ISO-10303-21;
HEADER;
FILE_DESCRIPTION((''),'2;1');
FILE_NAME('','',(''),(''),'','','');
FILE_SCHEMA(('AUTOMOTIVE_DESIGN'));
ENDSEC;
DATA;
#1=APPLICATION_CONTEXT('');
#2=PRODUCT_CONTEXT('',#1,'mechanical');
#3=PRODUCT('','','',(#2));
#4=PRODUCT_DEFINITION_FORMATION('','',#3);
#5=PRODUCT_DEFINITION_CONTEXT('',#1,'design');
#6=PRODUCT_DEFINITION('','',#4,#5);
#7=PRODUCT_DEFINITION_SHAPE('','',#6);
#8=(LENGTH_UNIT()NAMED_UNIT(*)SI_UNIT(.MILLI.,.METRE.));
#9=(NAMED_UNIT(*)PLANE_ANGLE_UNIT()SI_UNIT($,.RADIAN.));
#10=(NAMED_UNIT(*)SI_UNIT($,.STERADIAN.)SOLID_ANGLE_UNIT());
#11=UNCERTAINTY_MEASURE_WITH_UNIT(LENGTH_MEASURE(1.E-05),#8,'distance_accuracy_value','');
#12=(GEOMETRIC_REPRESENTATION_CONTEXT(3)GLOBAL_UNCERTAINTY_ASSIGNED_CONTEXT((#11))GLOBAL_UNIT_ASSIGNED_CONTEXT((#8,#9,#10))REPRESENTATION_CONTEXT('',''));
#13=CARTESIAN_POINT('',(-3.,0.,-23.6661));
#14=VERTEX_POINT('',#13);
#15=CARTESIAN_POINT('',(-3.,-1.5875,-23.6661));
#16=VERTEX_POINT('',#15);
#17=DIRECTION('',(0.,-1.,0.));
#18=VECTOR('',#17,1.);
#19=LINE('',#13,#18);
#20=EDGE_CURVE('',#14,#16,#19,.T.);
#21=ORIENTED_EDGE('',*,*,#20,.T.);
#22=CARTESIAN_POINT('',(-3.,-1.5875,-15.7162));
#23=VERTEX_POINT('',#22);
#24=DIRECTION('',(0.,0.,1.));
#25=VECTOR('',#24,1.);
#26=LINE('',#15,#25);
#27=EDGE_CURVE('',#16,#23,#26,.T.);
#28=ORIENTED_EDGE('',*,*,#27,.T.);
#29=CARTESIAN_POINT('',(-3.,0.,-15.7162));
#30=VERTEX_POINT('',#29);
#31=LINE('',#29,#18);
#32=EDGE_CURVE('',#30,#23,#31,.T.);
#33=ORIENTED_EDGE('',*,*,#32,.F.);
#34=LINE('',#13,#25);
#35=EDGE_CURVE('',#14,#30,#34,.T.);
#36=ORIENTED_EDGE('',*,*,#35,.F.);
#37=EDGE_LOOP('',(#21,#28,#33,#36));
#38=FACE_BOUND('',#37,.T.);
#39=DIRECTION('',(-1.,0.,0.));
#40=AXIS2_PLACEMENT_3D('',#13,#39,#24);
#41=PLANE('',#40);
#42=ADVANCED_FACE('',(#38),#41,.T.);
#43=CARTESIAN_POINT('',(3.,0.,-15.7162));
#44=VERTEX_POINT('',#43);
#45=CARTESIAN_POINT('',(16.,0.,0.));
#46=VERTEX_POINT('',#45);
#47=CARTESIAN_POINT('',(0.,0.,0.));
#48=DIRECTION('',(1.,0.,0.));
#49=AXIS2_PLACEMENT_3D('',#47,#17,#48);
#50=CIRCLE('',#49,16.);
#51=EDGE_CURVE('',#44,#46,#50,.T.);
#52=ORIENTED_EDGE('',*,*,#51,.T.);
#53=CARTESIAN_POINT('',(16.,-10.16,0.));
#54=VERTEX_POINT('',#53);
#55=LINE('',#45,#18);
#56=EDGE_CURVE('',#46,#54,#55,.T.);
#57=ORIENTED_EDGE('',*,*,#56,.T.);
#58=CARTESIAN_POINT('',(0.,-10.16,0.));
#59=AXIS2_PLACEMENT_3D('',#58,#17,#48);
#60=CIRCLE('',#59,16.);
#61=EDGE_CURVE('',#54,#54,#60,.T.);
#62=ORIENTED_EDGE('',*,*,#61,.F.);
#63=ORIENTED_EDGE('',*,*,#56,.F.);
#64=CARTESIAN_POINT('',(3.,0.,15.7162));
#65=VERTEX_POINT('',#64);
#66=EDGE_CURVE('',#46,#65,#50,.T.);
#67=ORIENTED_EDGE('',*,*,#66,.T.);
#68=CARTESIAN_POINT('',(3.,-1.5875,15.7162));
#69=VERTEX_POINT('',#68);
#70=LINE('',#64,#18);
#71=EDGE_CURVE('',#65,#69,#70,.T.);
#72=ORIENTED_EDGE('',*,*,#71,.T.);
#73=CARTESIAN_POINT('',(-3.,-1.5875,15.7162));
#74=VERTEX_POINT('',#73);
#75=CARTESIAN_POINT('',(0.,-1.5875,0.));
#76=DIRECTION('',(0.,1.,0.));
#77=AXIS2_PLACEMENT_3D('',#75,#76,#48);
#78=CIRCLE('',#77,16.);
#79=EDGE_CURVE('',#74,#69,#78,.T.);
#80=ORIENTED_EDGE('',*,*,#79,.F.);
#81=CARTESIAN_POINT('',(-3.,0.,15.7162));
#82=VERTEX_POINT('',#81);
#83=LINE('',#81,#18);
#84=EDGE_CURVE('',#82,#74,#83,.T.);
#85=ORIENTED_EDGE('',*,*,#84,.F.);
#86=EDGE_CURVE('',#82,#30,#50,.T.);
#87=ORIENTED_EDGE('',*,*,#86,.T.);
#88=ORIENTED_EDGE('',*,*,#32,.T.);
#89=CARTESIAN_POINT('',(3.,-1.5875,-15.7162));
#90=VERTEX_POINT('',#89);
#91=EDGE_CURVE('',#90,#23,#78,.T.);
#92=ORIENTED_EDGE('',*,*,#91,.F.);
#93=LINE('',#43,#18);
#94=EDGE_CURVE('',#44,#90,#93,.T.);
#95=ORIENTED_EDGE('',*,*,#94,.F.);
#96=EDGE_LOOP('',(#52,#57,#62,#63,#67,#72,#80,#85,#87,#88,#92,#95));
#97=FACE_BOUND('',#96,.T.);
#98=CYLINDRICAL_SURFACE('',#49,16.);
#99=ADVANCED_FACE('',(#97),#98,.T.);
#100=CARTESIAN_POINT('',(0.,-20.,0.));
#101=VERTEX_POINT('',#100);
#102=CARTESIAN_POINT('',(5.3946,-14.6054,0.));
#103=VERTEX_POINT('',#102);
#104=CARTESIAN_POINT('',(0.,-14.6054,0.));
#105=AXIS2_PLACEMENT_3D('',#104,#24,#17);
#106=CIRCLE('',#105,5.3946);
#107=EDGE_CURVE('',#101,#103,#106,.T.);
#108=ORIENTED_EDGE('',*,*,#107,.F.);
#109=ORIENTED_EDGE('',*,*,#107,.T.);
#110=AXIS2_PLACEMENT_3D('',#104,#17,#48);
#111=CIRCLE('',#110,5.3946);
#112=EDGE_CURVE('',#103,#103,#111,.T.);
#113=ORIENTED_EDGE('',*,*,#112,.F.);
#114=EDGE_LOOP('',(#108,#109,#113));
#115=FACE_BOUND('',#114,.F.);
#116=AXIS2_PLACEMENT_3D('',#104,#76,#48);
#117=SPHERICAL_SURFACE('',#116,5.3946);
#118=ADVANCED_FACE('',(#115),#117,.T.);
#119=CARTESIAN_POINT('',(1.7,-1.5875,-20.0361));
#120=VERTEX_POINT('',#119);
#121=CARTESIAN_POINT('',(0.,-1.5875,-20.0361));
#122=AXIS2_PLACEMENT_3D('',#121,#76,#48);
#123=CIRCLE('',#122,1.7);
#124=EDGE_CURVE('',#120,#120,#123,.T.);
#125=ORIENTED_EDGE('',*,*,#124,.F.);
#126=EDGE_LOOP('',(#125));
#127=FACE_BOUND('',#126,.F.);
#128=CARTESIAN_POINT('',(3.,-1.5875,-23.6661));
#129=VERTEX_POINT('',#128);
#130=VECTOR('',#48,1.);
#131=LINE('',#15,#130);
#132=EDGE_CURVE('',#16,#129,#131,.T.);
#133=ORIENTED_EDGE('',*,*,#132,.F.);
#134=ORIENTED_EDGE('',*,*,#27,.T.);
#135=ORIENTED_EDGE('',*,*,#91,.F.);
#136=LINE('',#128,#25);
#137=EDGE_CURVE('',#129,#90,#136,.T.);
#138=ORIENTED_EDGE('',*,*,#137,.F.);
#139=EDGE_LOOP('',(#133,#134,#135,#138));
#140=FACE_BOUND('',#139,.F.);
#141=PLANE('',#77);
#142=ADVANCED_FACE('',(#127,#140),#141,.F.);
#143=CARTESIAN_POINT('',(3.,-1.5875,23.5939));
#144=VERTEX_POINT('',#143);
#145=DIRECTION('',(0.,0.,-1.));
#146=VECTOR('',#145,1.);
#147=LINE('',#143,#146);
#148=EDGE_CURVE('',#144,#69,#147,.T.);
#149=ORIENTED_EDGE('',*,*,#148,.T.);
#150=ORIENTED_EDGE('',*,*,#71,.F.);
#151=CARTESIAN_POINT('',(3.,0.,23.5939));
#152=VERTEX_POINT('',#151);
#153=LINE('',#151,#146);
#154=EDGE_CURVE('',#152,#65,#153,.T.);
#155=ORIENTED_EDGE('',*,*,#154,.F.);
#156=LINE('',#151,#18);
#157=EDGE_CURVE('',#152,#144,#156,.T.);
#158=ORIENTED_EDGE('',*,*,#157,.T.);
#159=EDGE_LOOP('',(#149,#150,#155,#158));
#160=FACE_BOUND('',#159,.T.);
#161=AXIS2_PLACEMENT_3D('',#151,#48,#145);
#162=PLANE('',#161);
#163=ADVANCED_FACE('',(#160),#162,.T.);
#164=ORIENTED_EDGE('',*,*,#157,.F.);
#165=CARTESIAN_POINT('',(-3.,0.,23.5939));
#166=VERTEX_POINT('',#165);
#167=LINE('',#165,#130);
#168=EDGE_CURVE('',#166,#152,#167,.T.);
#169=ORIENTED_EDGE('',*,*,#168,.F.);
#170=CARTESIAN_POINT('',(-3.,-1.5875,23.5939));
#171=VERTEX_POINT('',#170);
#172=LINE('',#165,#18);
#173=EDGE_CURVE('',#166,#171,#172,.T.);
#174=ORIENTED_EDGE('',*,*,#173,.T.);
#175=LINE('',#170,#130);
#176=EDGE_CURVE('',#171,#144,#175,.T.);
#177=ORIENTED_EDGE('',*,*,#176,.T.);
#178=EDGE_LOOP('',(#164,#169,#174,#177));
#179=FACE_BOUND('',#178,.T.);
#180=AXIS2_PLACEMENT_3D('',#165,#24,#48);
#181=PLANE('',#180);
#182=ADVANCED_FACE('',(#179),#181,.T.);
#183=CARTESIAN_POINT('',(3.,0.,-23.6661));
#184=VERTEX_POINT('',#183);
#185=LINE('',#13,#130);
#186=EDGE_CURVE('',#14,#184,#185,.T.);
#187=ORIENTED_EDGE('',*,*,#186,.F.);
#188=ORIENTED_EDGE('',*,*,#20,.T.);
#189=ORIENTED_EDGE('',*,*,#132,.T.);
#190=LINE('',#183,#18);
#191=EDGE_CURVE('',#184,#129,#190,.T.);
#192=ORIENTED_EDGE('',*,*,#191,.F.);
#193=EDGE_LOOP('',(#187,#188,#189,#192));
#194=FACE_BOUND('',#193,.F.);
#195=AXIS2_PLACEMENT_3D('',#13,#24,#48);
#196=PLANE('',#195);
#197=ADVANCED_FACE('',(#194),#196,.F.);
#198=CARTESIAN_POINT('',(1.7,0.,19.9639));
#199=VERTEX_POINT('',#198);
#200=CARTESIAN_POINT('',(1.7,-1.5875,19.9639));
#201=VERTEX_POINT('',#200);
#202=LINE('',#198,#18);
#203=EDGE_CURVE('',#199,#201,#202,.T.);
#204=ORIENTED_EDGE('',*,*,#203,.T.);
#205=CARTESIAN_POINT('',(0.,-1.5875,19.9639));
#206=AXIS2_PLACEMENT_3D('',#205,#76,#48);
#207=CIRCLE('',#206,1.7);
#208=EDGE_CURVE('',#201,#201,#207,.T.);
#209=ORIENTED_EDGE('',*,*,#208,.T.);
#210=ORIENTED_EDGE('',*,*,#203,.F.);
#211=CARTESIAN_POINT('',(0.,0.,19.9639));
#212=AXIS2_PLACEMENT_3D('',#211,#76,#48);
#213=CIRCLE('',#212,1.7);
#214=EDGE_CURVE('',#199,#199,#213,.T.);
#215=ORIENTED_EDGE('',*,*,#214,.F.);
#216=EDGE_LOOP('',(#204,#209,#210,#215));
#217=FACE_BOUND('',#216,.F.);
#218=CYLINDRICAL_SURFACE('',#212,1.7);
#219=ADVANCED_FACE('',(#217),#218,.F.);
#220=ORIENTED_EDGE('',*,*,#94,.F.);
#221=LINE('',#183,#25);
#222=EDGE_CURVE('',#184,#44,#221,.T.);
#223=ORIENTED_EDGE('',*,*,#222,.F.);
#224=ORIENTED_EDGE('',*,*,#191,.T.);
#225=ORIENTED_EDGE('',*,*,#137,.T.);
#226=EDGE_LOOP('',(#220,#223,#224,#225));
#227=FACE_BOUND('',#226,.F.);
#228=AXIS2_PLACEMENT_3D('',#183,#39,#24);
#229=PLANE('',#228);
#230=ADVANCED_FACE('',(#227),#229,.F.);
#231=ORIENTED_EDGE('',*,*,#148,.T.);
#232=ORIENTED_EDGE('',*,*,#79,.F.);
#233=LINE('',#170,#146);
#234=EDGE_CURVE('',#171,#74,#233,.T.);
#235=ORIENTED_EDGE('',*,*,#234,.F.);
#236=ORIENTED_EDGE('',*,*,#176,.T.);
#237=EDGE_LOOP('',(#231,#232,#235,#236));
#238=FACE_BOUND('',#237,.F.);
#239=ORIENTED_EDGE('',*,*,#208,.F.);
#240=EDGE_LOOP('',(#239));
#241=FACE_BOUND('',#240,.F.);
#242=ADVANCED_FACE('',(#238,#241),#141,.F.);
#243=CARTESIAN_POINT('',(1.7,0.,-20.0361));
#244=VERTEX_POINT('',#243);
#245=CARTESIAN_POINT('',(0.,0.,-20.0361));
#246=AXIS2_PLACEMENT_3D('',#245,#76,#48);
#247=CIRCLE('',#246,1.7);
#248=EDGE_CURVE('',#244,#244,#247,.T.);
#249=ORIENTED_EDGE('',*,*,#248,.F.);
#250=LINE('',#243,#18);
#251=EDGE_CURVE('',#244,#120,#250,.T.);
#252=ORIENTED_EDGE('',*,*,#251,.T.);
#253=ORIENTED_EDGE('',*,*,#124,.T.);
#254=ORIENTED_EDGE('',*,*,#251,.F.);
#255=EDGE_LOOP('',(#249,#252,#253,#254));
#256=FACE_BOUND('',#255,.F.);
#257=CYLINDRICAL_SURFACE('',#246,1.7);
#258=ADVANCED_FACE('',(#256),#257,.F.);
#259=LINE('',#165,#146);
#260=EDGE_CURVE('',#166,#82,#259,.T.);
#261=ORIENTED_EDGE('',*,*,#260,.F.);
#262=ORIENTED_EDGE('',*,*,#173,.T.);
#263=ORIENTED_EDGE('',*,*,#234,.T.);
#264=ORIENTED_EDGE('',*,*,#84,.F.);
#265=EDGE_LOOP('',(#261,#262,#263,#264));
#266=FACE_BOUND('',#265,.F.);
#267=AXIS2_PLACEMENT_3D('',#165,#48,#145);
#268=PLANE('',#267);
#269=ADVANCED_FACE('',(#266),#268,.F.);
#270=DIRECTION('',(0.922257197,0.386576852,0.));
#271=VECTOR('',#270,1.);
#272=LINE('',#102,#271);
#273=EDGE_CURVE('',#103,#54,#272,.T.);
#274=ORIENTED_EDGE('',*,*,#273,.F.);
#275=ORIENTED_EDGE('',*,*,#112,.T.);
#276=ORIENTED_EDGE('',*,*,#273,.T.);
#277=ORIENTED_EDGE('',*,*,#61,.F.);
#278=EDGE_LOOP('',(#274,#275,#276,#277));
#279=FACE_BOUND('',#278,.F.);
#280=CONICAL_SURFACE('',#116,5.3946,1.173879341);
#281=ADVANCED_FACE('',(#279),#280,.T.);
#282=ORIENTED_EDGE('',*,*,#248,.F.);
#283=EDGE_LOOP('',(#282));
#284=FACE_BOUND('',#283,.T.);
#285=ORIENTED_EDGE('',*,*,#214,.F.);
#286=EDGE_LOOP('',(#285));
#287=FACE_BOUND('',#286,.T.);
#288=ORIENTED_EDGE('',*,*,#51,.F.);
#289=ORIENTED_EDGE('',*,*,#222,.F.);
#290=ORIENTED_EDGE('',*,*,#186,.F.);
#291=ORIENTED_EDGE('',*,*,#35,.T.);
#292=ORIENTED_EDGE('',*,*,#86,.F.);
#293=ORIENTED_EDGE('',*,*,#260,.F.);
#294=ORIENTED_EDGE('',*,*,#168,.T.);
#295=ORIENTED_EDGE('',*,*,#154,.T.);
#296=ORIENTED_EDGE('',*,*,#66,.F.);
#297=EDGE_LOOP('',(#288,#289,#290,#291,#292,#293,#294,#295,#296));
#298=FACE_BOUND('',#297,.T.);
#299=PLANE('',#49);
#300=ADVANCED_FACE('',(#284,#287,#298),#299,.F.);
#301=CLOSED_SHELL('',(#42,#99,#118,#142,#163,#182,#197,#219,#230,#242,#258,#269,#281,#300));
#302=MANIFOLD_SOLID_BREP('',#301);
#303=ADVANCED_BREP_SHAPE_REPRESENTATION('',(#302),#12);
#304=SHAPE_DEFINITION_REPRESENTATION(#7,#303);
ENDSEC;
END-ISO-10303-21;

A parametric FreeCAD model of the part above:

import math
import FreeCAD as App
import Part
import Sketcher

V = App.Vector

doc = App.newDocument("Part")
body = doc.addObject("PartDesign::Body", "Body")

# Sketch on XY plane
sketch1 = body.newObject("Sketcher::SketchObject", "Sketch")
sketch1.AttachmentSupport = (doc.getObject("XY_Plane"), [""])
sketch1.MapMode = "FlatFace"
sketch1.addGeometry([
    Part.LineSegment(V(16, 0, 0), V(0, 0, 0)),  # 0
    Part.LineSegment(V(0, 0, 0), V(0, -20, 0)),  # 1
    Part.ArcOfCircle(Part.Circle(V(0, -15, 0), V(0, 0, 1), 5), math.radians(-90), math.radians(0)),  # 2
    Part.LineSegment(V(5, -15, 0), V(16, -10, 0)),  # 3
    Part.LineSegment(V(16, -10, 0), V(16, 0, 0)),  # 4
], False)
sketch1.addConstraint([
    Sketcher.Constraint("Coincident", 0, 2, 1, 1),
    Sketcher.Constraint("Coincident", 1, 2, 2, 1),
    Sketcher.Constraint("Coincident", 2, 2, 3, 1),
    Sketcher.Constraint("Coincident", 3, 2, 4, 1),
    Sketcher.Constraint("Coincident", 4, 2, 0, 1),
    Sketcher.Constraint("Horizontal", 0),
    Sketcher.Constraint("Vertical", 1),
    Sketcher.Constraint("Vertical", 4),
    Sketcher.Constraint("Coincident", 0, 2, -1, 1),
    Sketcher.Constraint("PointOnObject", 2, 3, -2),
    Sketcher.Constraint("DistanceX", 0, 2, 0, 1, 16.0),
    Sketcher.Constraint("DistanceY", 1, 2, 1, 1, 20.0),
    Sketcher.Constraint("DistanceY", 4, 1, 4, 2, 10.16),
    Sketcher.Constraint("Radius", 2, 5.3946),
    Sketcher.Constraint("DistanceY", 1, 2, 2, 2, 5.3946),
])
revolution = body.newObject("PartDesign::Revolution", "Revolution")
revolution.Profile = sketch1
revolution.ReferenceAxis = (sketch1, ["V_Axis"])
revolution.Angle = 360

# Sketch on XZ plane
sketch2 = body.newObject("Sketcher::SketchObject", "Sketch001")
sketch2.AttachmentSupport = (doc.getObject("XZ_Plane"), [""])
sketch2.MapMode = "FlatFace"
sketch2.addGeometry([
    Part.LineSegment(V(3, -23.7, 0), V(-3, -23.7, 0)),  # 0
    Part.LineSegment(V(-3, -23.7, 0), V(-3, -15.7, 0)),  # 1
    Part.ArcOfCircle(Part.Circle(V(0, 0, 0), V(0, 0, 1), 16), math.radians(-101), math.radians(-79)),  # 2
    Part.LineSegment(V(3, -15.7, 0), V(3, -23.7, 0)),  # 3
    Part.Circle(V(0, -20, 0), V(0, 0, 1), 1.7),  # 4
    Part.ArcOfCircle(Part.Circle(V(0, 0, 0), V(0, 0, 1), 16), math.radians(79), math.radians(101)),  # 5
    Part.LineSegment(V(-3, 15.7, 0), V(-3, 23.6, 0)),  # 6
    Part.LineSegment(V(-3, 23.6, 0), V(3, 23.6, 0)),  # 7
    Part.LineSegment(V(3, 23.6, 0), V(3, 15.7, 0)),  # 8
    Part.Circle(V(0, 20, 0), V(0, 0, 1), 1.7),  # 9
], False)
sketch2.addConstraint([
    Sketcher.Constraint("Coincident", 0, 2, 1, 1),
    Sketcher.Constraint("Coincident", 1, 2, 2, 1),
    Sketcher.Constraint("Coincident", 2, 2, 3, 1),
    Sketcher.Constraint("Coincident", 3, 2, 0, 1),
    Sketcher.Constraint("Coincident", 5, 2, 6, 1),
    Sketcher.Constraint("Coincident", 6, 2, 7, 1),
    Sketcher.Constraint("Coincident", 7, 2, 8, 1),
    Sketcher.Constraint("Coincident", 8, 2, 5, 1),
    Sketcher.Constraint("Horizontal", 0),
    Sketcher.Constraint("Vertical", 1),
    Sketcher.Constraint("Vertical", 3),
    Sketcher.Constraint("Vertical", 6),
    Sketcher.Constraint("Horizontal", 7),
    Sketcher.Constraint("Vertical", 8),
    Sketcher.Constraint("Coincident", 2, 3, -1, 1),
    Sketcher.Constraint("Coincident", 5, 3, -1, 1),
    Sketcher.Constraint("Equal", 2, 5),
    Sketcher.Constraint("Equal", 4, 9),
    Sketcher.Constraint("PointOnObject", 4, 3, -2),
    Sketcher.Constraint("PointOnObject", 9, 3, -2),
    Sketcher.Constraint("Horizontal", 1, 2, 2, 2),
    Sketcher.Constraint("Horizontal", 5, 2, 8, 2),
    Sketcher.Constraint("Vertical", 1, 2, 5, 2),
    Sketcher.Constraint("Radius", 2, 16.0),
    Sketcher.Constraint("Diameter", 4, 3.4),
    Sketcher.Constraint("DistanceX", 0, 2, -1, 1, 3.0),
    Sketcher.Constraint("DistanceY", 4, 3, 9, 3, 40.0),
    Sketcher.Constraint("DistanceY", 0, 2, 4, 3, 3.63),
    Sketcher.Constraint("DistanceY", 9, 3, 6, 2, 3.63),
    Sketcher.Constraint("DistanceY", 1, 1, 1, 2, 7.95),
])
pad1 = body.newObject("PartDesign::Pad", "Pad")
pad1.Profile = sketch2
pad1.Length = 1.5875

doc.recompute()
